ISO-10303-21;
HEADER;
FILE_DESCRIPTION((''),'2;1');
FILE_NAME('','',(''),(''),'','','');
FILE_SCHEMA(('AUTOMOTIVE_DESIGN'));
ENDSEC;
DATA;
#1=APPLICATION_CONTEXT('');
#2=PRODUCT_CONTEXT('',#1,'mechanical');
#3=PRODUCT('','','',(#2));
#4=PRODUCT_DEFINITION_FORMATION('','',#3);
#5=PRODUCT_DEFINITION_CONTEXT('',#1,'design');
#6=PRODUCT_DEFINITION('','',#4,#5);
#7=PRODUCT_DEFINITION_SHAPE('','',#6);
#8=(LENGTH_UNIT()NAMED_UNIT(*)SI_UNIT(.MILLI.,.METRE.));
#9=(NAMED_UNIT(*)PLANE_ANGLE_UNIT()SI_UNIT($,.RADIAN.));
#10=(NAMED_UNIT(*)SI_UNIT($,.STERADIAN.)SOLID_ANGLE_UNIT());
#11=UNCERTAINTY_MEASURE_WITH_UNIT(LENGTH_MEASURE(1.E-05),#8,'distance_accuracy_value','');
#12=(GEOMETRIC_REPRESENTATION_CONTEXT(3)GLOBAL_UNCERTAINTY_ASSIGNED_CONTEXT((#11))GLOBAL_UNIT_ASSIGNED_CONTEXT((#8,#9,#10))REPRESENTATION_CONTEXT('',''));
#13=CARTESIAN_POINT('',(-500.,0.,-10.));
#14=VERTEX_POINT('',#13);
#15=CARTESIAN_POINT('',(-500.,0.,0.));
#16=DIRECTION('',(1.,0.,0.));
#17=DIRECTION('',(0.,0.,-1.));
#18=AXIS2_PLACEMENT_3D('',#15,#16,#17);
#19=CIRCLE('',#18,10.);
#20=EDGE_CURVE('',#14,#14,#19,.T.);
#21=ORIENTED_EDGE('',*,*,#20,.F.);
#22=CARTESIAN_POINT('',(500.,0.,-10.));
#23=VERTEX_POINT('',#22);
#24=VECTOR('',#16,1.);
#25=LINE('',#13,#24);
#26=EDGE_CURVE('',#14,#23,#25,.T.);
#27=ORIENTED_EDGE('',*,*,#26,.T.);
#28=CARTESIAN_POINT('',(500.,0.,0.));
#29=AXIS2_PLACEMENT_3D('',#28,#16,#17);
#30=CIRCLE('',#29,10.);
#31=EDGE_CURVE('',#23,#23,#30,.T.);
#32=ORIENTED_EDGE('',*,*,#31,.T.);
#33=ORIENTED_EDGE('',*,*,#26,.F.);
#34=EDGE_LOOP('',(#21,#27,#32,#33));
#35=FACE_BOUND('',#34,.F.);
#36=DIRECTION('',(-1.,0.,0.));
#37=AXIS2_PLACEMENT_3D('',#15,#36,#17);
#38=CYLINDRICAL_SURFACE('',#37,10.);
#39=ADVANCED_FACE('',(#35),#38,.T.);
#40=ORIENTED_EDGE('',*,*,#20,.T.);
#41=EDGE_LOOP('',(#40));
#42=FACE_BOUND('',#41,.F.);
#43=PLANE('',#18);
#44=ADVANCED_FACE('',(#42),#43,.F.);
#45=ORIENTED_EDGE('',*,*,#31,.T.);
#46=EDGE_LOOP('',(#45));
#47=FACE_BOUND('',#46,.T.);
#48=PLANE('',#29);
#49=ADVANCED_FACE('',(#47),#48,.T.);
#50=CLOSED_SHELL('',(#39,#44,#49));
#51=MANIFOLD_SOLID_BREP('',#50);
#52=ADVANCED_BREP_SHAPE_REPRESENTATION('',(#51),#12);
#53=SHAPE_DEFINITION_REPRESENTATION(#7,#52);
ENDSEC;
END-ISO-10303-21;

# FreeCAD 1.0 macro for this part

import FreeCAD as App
import Part
import Sketcher

doc = App.newDocument("Part")
params = doc.addObject("Spreadsheet::Sheet", "Params")
for row, (alias, value) in enumerate([
    ("sketch1_diameter", "20 mm"),
    ("pad1_length", "1000 mm"),
], start=1):
    params.set(f"A{row}", alias)
    params.set(f"B{row}", "=" + value)
    params.setAlias(f"B{row}", alias)

body = doc.addObject("PartDesign::Body", "Body")

sketch1 = body.newObject("Sketcher::SketchObject", "Sketch")
sketch1.AttachmentSupport = (doc.getObject("XY_Plane"), [""])
sketch1.MapMode = "FlatFace"
sketch1.addGeometry(Part.Circle(App.Vector(0, 0, 0), App.Vector(0, 0, 1), 10), False)
sketch1.addConstraint([
    Sketcher.Constraint("Coincident", 0, 3, -1, 1),
    Sketcher.Constraint("Diameter", 0, 20.0),
])
sketch1.setExpression("Constraints[1]", "Params.sketch1_diameter")
pad1 = body.newObject("PartDesign::Pad", "Pad")
pad1.Profile = sketch1
pad1.setExpression("Length", "Params.pad1_length")
body2 = doc.addObject("PartDesign::Body", "Body001")
doc.recompute()

body.Placement = App.Placement(App.Vector(0, 0, 0), App.Rotation(App.Vector(0, 1, 0), 90))
boolean = body2.newObject("PartDesign::Boolean", "Boolean")
boolean.Type = "Fuse"
boolean.addObjects([body])
body3 = doc.addObject("PartDesign::Body", "Body002")
doc.recompute()

body2.Placement = App.Placement(App.Vector(-500, 0, 0), App.Rotation(App.Vector(0, 0, 1), 0))
boolean2 = body3.newObject("PartDesign::Boolean", "Boolean001")
boolean2.Type = "Fuse"
boolean2.addObjects([body2])

doc.recompute()
